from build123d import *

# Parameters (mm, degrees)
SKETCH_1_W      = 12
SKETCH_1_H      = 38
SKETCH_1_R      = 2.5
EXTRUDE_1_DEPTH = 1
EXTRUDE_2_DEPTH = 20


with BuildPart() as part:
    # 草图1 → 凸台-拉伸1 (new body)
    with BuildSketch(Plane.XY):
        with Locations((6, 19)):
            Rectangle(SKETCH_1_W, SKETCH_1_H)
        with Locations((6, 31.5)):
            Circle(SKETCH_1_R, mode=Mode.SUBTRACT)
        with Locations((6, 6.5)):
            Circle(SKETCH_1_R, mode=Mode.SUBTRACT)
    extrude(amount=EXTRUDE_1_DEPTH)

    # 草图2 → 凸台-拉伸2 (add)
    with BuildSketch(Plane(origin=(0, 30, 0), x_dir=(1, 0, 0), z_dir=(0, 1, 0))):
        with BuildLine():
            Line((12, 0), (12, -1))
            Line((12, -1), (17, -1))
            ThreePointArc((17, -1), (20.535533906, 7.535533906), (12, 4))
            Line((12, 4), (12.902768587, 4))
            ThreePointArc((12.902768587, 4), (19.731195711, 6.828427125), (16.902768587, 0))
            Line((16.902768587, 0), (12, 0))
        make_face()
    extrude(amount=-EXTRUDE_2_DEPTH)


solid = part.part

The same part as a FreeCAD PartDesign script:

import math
import FreeCAD as App
import Part
import Sketcher
from FreeCAD import Vector
Q = App.Units.Quantity

doc = App.newDocument("Part")
body = doc.addObject("PartDesign::Body", "Body")

sketch1 = body.newObject("Sketcher::SketchObject", "Sketch")
sketch1.AttachmentSupport = (doc.getObject("XY_Plane"), [""])
sketch1.MapMode = "FlatFace"
sketch1.addGeometry([
    Part.LineSegment(Vector(0, 38, 0), Vector(0, 0, 0)),
    Part.LineSegment(Vector(0, 0, 0), Vector(12, 0, 0)),
    Part.LineSegment(Vector(12, 0, 0), Vector(12, 38, 0)),
    Part.LineSegment(Vector(12, 38, 0), Vector(0, 38, 0)),
    Part.Circle(Vector(6, 6.5, 0), Vector(0, 0, 1), 2.5),
    Part.Circle(Vector(6, 31.5, 0), Vector(0, 0, 1), 2.5),
], False)
sketch1.addConstraint([
    Sketcher.Constraint("Coincident", 0, 2, 1, 1),
    Sketcher.Constraint("Coincident", 1, 2, 2, 1),
    Sketcher.Constraint("Coincident", 2, 2, 3, 1),
    Sketcher.Constraint("Coincident", 3, 2, 0, 1),
    Sketcher.Constraint("Vertical", 0),
    Sketcher.Constraint("Horizontal", 1),
    Sketcher.Constraint("Vertical", 2),
    Sketcher.Constraint("Horizontal", 3),
    Sketcher.Constraint("Coincident", 0, 2, -1, 1),
    Sketcher.Constraint("Equal", 4, 5),
    Sketcher.Constraint("Vertical", 4, 3, 5, 3),
    Sketcher.Constraint("Diameter", 4, Q("5 mm")),
    Sketcher.Constraint("DistanceX", 1, 1, 1, 2, Q("12 mm")),
    Sketcher.Constraint("DistanceY", 0, 2, 0, 1, Q("38 mm")),
    Sketcher.Constraint("DistanceX", -1, 1, 4, 3, Q("6 mm")),
    Sketcher.Constraint("DistanceY", 4, 3, 5, 3, Q("25 mm")),
    Sketcher.Constraint("DistanceY", -1, 1, 4, 3, Q("6.5 mm")),
])
pad1 = body.newObject("PartDesign::Pad", "Pad")
pad1.Profile = sketch1
pad1.Length = 1

sketch2 = body.newObject("Sketcher::SketchObject", "Sketch001")
sketch2.AttachmentSupport = (doc.getObject("XZ_Plane"), [""])
sketch2.MapMode = "FlatFace"
sketch2.AttachmentOffset = App.Placement(Vector(0, 0, -30), App.Rotation())
sketch2.addGeometry([
    Part.LineSegment(Vector(12, 0, 0), Vector(12, 1, 0)),
    Part.LineSegment(Vector(12, 1, 0), Vector(17, 1, 0)),
    Part.ArcOfCircle(Part.Circle(Vector(17, -4, 0), Vector(0, 0, 1), 5), math.radians(180), math.radians(450)),
    Part.LineSegment(Vector(12, -4, 0), Vector(12.902769, -4, 0)),
    Part.ArcOfCircle(Part.Circle(Vector(16.902769, -4, 0), Vector(0, 0, 1), 4), math.radians(180), math.radians(450)),
    Part.LineSegment(Vector(16.902769, 0, 0), Vector(12, 0, 0)),
], False)
sketch2.addConstraint([
    Sketcher.Constraint("Coincident", 0, 2, 1, 1),
    Sketcher.Constraint("Tangent", 1, 2, 2, 2),
    Sketcher.Constraint("Coincident", 2, 1, 3, 1),
    Sketcher.Constraint("Coincident", 3, 2, 4, 1),
    Sketcher.Constraint("Tangent", 4, 2, 5, 1),
    Sketcher.Constraint("Coincident", 5, 2, 0, 1),
    Sketcher.Constraint("Vertical", 0),
    Sketcher.Constraint("Horizontal", 1),
    Sketcher.Constraint("Horizontal", 3),
    Sketcher.Constraint("Horizontal", 5),
    Sketcher.Constraint("PointOnObject", 4, 2, -1),
    Sketcher.Constraint("Horizontal", 2, 3, 4, 3),
    Sketcher.Constraint("Horizontal", 4, 3, 2, 1),
    Sketcher.Constraint("Vertical", 0, 2, 2, 1),
    Sketcher.Constraint("Radius", 2, Q("5 mm")),
    Sketcher.Constraint("Radius", 4, Q("4 mm")),
    Sketcher.Constraint("DistanceX", -1, 1, 2, 3, Q("17 mm")),
    Sketcher.Constraint("DistanceX", 3, 1, 3, 2, Q("0.902769 mm")),
])
pad2 = body.newObject("PartDesign::Pad", "Pad001")
pad2.Profile = sketch2
pad2.Length = 20

doc.recompute()
